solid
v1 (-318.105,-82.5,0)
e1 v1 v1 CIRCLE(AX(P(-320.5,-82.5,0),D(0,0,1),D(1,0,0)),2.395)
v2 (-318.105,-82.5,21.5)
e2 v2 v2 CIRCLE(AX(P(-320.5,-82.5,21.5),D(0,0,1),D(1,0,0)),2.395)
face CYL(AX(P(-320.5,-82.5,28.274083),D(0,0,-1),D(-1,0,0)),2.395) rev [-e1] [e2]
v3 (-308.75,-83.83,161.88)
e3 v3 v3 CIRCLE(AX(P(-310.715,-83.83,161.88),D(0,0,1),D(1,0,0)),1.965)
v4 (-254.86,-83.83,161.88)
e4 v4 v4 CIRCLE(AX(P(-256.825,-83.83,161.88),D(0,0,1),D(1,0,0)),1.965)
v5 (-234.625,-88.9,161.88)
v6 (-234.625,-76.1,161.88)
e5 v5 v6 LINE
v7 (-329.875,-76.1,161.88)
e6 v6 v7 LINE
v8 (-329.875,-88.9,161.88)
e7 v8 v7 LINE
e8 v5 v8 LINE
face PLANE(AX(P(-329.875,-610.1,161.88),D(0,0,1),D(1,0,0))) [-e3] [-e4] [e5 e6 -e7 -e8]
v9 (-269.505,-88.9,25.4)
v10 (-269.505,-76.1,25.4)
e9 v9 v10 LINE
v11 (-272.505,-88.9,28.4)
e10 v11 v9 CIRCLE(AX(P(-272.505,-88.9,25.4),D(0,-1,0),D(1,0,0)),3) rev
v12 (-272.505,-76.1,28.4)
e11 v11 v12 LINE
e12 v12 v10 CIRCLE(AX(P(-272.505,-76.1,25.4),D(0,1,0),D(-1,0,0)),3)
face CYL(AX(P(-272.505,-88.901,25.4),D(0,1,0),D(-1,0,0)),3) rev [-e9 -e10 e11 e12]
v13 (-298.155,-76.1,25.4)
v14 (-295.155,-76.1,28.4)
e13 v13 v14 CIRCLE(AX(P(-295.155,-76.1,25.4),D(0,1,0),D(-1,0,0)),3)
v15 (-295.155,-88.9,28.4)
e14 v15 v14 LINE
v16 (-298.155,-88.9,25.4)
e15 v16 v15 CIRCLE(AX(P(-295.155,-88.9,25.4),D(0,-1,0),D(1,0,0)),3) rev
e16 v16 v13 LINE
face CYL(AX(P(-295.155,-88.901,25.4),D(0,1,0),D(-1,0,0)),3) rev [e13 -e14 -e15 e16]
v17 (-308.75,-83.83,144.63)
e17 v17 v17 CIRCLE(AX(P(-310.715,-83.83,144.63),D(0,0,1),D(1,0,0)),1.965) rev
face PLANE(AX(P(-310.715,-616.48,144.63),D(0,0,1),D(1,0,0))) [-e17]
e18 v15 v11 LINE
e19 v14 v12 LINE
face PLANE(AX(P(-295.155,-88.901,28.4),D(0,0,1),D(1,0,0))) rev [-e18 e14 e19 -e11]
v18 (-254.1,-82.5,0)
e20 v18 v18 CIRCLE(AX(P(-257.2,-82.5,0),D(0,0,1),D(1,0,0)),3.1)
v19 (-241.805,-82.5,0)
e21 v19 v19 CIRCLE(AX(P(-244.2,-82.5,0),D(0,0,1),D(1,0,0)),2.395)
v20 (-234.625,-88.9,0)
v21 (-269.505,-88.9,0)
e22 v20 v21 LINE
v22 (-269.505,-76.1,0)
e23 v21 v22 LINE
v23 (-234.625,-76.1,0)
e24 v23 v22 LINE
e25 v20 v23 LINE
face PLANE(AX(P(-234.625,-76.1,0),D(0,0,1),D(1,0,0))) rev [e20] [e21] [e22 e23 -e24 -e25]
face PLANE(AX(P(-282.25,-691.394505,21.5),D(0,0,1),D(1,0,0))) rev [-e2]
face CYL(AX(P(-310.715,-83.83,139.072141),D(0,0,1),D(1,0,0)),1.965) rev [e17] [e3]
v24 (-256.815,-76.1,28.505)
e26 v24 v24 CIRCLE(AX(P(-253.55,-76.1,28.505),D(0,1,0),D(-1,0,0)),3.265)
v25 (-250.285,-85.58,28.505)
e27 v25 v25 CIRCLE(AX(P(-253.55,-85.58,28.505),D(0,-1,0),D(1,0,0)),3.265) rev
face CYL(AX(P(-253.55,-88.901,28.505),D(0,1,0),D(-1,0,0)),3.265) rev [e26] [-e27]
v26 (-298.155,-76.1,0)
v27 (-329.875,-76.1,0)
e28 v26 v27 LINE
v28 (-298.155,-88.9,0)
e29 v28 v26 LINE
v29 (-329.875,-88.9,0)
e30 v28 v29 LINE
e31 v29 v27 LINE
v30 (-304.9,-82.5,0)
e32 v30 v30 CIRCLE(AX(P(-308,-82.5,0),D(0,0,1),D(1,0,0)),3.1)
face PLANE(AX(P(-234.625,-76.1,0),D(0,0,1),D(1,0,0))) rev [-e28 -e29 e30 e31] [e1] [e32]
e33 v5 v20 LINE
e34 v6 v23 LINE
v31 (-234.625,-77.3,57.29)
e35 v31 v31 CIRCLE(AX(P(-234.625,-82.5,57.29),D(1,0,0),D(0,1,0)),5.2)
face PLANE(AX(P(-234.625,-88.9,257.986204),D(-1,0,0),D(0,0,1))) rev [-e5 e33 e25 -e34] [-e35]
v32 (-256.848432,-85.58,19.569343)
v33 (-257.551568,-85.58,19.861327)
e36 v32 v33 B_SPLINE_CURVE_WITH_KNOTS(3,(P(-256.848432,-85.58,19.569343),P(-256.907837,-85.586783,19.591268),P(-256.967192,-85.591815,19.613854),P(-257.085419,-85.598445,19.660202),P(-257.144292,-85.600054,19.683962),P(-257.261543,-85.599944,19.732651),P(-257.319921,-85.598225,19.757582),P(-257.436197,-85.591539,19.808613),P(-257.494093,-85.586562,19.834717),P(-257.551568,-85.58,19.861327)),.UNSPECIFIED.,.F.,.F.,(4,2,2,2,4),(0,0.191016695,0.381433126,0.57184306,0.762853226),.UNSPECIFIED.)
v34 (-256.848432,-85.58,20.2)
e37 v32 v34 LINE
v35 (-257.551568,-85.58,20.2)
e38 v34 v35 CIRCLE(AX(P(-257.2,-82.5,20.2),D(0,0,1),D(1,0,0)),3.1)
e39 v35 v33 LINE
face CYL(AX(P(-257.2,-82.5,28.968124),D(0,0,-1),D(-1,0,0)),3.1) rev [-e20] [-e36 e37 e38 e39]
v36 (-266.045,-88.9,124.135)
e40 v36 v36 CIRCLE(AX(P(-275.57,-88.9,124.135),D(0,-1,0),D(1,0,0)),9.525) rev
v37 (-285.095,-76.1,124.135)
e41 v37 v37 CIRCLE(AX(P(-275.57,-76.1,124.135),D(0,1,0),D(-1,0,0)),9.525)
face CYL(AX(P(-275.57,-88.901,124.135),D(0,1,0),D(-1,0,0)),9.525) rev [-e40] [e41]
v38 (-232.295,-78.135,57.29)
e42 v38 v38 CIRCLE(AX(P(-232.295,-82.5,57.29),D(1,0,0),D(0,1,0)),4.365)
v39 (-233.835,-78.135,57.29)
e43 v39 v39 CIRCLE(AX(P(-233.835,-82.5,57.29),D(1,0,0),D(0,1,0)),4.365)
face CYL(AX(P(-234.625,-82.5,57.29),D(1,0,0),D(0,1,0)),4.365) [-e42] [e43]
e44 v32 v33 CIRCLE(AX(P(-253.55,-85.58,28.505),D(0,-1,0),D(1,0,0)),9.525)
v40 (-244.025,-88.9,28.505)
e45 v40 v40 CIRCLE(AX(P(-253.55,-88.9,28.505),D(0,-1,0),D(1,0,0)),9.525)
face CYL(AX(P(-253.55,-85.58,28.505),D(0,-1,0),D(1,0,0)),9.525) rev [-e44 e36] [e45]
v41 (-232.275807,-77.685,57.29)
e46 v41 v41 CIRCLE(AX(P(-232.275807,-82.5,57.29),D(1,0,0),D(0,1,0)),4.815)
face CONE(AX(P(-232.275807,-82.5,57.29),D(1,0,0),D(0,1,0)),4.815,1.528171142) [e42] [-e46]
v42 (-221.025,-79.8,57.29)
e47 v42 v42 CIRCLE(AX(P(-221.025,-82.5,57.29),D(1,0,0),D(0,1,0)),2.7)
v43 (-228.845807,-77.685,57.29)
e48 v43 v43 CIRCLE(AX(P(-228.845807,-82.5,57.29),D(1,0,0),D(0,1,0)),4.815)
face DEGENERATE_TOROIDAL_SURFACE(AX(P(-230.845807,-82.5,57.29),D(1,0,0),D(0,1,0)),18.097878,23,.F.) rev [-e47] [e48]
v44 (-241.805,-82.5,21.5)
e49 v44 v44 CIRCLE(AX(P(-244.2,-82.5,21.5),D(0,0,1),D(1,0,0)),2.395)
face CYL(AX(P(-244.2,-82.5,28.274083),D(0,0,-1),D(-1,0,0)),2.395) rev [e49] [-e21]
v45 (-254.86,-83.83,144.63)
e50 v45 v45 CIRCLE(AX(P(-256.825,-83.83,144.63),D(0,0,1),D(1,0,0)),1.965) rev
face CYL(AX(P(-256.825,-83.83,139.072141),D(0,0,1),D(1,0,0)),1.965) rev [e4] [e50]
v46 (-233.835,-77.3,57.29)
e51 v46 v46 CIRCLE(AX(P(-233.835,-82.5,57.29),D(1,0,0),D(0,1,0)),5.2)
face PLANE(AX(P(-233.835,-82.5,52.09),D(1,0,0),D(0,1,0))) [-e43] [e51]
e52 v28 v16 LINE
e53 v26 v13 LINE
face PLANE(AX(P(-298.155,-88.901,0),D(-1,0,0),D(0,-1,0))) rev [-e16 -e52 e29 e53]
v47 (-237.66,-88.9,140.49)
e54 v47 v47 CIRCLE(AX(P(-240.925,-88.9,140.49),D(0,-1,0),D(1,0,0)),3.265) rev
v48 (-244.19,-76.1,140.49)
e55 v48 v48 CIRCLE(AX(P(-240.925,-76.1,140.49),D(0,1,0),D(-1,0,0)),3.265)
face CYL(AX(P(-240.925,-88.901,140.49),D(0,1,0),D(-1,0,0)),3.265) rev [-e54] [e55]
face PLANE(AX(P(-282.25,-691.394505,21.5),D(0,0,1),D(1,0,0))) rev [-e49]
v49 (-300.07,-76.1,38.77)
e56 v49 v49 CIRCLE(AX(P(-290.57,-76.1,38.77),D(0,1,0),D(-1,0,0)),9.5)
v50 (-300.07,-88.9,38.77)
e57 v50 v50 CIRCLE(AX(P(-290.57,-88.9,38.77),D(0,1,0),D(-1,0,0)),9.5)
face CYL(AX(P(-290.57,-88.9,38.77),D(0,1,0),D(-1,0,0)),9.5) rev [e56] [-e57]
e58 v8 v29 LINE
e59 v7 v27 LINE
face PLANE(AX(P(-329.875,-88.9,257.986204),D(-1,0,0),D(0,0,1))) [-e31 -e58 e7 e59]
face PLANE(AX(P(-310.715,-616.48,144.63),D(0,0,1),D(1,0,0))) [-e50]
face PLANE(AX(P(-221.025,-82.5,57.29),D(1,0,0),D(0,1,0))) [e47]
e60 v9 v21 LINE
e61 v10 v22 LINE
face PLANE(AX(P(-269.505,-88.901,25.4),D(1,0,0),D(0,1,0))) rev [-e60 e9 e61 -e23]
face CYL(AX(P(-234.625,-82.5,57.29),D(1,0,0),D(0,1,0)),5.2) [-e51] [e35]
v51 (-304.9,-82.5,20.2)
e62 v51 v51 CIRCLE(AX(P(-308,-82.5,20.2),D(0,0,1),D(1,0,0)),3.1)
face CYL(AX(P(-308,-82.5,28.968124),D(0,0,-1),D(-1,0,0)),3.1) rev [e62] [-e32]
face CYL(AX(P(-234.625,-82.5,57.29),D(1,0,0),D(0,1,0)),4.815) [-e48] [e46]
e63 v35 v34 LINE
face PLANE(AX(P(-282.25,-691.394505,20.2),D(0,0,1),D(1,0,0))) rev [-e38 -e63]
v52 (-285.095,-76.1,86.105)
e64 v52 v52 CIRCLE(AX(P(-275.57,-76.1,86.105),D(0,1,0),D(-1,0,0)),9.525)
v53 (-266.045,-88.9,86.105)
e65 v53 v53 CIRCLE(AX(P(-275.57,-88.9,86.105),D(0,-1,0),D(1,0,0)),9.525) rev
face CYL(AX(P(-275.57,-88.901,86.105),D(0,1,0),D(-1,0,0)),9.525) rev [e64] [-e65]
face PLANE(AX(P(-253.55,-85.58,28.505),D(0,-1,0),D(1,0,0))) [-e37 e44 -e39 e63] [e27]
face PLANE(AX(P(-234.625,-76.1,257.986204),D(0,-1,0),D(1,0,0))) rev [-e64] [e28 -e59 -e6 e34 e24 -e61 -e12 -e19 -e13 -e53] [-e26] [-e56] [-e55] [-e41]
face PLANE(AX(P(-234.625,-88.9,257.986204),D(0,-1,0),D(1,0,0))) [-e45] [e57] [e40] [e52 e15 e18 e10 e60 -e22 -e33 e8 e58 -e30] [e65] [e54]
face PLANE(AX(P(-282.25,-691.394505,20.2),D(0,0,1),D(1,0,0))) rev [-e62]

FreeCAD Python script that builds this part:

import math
import FreeCAD as App
import Part
import Sketcher
from FreeCAD import Vector

doc = App.newDocument("Part")
body = doc.addObject("PartDesign::Body", "Body")

sketch1 = body.newObject("Sketcher::SketchObject", "Sketch")
sketch1.AttachmentSupport = (doc.getObject("XY_Plane"), [""])
sketch1.MapMode = "FlatFace"
sketch1.addGeometry(Part.LineSegment(Vector(-330, -76, 0), Vector(-330, -89, 0)), False)
sketch1.addGeometry(Part.LineSegment(Vector(-330, -89, 0), Vector(-235, -89, 0)), False)
sketch1.addGeometry(Part.LineSegment(Vector(-235, -89, 0), Vector(-235, -76, 0)), False)
sketch1.addGeometry(Part.LineSegment(Vector(-235, -76, 0), Vector(-330, -76, 0)), False)
sketch1.addConstraint(Sketcher.Constraint("Coincident", 0, 2, 1, 1))
sketch1.addConstraint(Sketcher.Constraint("Coincident", 1, 2, 2, 1))
sketch1.addConstraint(Sketcher.Constraint("Coincident", 2, 2, 3, 1))
sketch1.addConstraint(Sketcher.Constraint("Coincident", 3, 2, 0, 1))
sketch1.addConstraint(Sketcher.Constraint("Vertical", 0))
sketch1.addConstraint(Sketcher.Constraint("Horizontal", 1))
sketch1.addConstraint(Sketcher.Constraint("Vertical", 2))
sketch1.addConstraint(Sketcher.Constraint("Horizontal", 3))
sketch1.addConstraint(Sketcher.Constraint("DistanceY", 0, 2, 0, 1, 12.8))
sketch1.addConstraint(Sketcher.Constraint("DistanceX", 1, 1, 1, 2, 95.25))
sketch1.addConstraint(Sketcher.Constraint("DistanceY", 0, 2, -1, 1, 88.9))
sketch1.addConstraint(Sketcher.Constraint("DistanceX", 0, 2, -1, 1, 329.875))
pad1 = body.newObject("PartDesign::Pad", "Pad")
pad1.Profile = sketch1
pad1.Length = 161.88

sketch2 = body.newObject("Sketcher::SketchObject", "Sketch001")
sketch2.AttachmentSupport = (doc.getObject("XY_Plane"), [""])
sketch2.MapMode = "FlatFace"
sketch2.addGeometry(Part.Circle(Vector(-308, -82.5, 0), Vector(0, 0, 1), 3.1), False)
sketch2.addGeometry(Part.Circle(Vector(-257.2, -82.5, 0), Vector(0, 0, 1), 3.1), False)
sketch2.addConstraint(Sketcher.Constraint("Equal", 0, 1))
sketch2.addConstraint(Sketcher.Constraint("Horizontal", 0, 3, 1, 3))
sketch2.addConstraint(Sketcher.Constraint("Diameter", 0, 6.2))
sketch2.addConstraint(Sketcher.Constraint("DistanceX", 0, 3, -1, 1, 308.0))
sketch2.addConstraint(Sketcher.Constraint("DistanceY", 0, 3, -1, 1, 82.5))
sketch2.addConstraint(Sketcher.Constraint("DistanceX", 1, 3, -1, 1, 257.2))
pocket1 = body.newObject("PartDesign::Pocket", "Pocket")
pocket1.Profile = sketch2
pocket1.Length = 20.2
pocket1.Reversed = True

sketch3 = body.newObject("Sketcher::SketchObject", "Sketch002")
sketch3.AttachmentSupport = (doc.getObject("XY_Plane"), [""])
sketch3.MapMode = "FlatFace"
sketch3.addGeometry(Part.Circle(Vector(-320.5, -82.5, 0), Vector(0, 0, 1), 2.4), False)
sketch3.addGeometry(Part.Circle(Vector(-244.2, -82.5, 0), Vector(0, 0, 1), 2.4), False)
sketch3.addConstraint(Sketcher.Constraint("Equal", 0, 1))
sketch3.addConstraint(Sketcher.Constraint("Horizontal", 0, 3, 1, 3))
sketch3.addConstraint(Sketcher.Constraint("Diameter", 0, 4.79))
sketch3.addConstraint(Sketcher.Constraint("DistanceX", 0, 3, -1, 1, 320.5))
sketch3.addConstraint(Sketcher.Constraint("DistanceY", 0, 3, -1, 1, 82.5))
sketch3.addConstraint(Sketcher.Constraint("DistanceX", 1, 3, -1, 1, 244.2))
pocket2 = body.newObject("PartDesign::Pocket", "Pocket001")
pocket2.Profile = sketch3
pocket2.Length = 21.5
pocket2.Reversed = True

sketch4 = body.newObject("Sketcher::SketchObject", "Sketch003")
sketch4.AttachmentSupport = (doc.getObject("XZ_Plane"), [""])
sketch4.MapMode = "FlatFace"
sketch4.AttachmentOffset = App.Placement(Vector(0, 0, 76.1), App.Rotation())
sketch4.addGeometry(Part.Circle(Vector(-276, 86, 0), Vector(0, 0, 1), 10), False)
sketch4.addConstraint(Sketcher.Constraint("Diameter", 0, 19.05))
sketch4.addConstraint(Sketcher.Constraint("DistanceX", 0, 3, -1, 1, 275.57))
sketch4.addConstraint(Sketcher.Constraint("DistanceY", -1, 1, 0, 3, 86.105))
pocket3 = body.newObject("PartDesign::Pocket", "Pocket002")
pocket3.Profile = sketch4
pocket3.Type = "UpToFirst"
pocket3.Reversed = True

sketch5 = body.newObject("Sketcher::SketchObject", "Sketch004")
sketch5.AttachmentSupport = (doc.getObject("XZ_Plane"), [""])
sketch5.MapMode = "FlatFace"
sketch5.AttachmentOffset = App.Placement(Vector(0, 0, 76.1), App.Rotation())
sketch5.addGeometry(Part.Circle(Vector(-276, 124, 0), Vector(0, 0, 1), 10), False)
sketch5.addConstraint(Sketcher.Constraint("Diameter", 0, 19.05))
sketch5.addConstraint(Sketcher.Constraint("DistanceX", 0, 3, -1, 1, 275.57))
sketch5.addConstraint(Sketcher.Constraint("DistanceY", -1, 1, 0, 3, 124.135))
pocket4 = body.newObject("PartDesign::Pocket", "Pocket003")
pocket4.Profile = sketch5
pocket4.Type = "UpToFirst"
pocket4.Reversed = True

sketch6 = body.newObject("Sketcher::SketchObject", "Sketch005")
sketch6.AttachmentSupport = (doc.getObject("XZ_Plane"), [""])
sketch6.MapMode = "FlatFace"
sketch6.AttachmentOffset = App.Placement(Vector(0, 0, 76.1), App.Rotation())
sketch6.addGeometry(Part.Circle(Vector(-253.6, 28.5, 0), Vector(0, 0, 1), 3.3), False)
sketch6.addConstraint(Sketcher.Constraint("Diameter", 0, 6.53))
sketch6.addConstraint(Sketcher.Constraint("DistanceX", 0, 3, -1, 1, 253.55))
sketch6.addConstraint(Sketcher.Constraint("DistanceY", -1, 1, 0, 3, 28.505))
pocket5 = body.newObject("PartDesign::Pocket", "Pocket004")
pocket5.Profile = sketch6
pocket5.Type = "UpToFirst"
pocket5.Reversed = True

sketch7 = body.newObject("Sketcher::SketchObject", "Sketch006")
sketch7.AttachmentSupport = (doc.getObject("XZ_Plane"), [""])
sketch7.MapMode = "FlatFace"
sketch7.AttachmentOffset = App.Placement(Vector(0, 0, 76.1), App.Rotation())
sketch7.addGeometry(Part.Circle(Vector(-240.9, 140.5, 0), Vector(0, 0, 1), 3.3), False)
sketch7.addConstraint(Sketcher.Constraint("Diameter", 0, 6.53))
sketch7.addConstraint(Sketcher.Constraint("DistanceY", -1, 1, 0, 3, 140.49))
sketch7.addConstraint(Sketcher.Constraint("DistanceX", 0, 3, -1, 1, 240.925))
pocket6 = body.newObject("PartDesign::Pocket", "Pocket005")
pocket6.Profile = sketch7
pocket6.Type = "UpToFirst"
pocket6.Reversed = True

sketch8 = body.newObject("Sketcher::SketchObject", "Sketch007")
sketch8.AttachmentSupport = (doc.getObject("XZ_Plane"), [""])
sketch8.MapMode = "FlatFace"
sketch8.AttachmentOffset = App.Placement(Vector(0, 0, 76.1), App.Rotation())
sketch8.addGeometry(Part.LineSegment(Vector(-269.5, 25.4, 0), Vector(-269.5, 0, 0)), False)
sketch8.addGeometry(Part.LineSegment(Vector(-269.5, 0, 0), Vector(-298.2, 0, 0)), False)
sketch8.addGeometry(Part.LineSegment(Vector(-298.2, 0, 0), Vector(-298.2, 25.4, 0)), False)
sketch8.addGeometry(Part.ArcOfCircle(Part.Circle(Vector(-295.2, 25.4, 0), Vector(0, 0, 1), 3), math.radians(90), math.radians(180)), False)
sketch8.addGeometry(Part.LineSegment(Vector(-295.2, 28.4, 0), Vector(-272.5, 28.4, 0)), False)
sketch8.addGeometry(Part.ArcOfCircle(Part.Circle(Vector(-272.5, 25.4, 0), Vector(0, 0, 1), 3), math.radians(0), math.radians(90)), False)
sketch8.addConstraint(Sketcher.Constraint("Coincident", 0, 2, 1, 1))
sketch8.addConstraint(Sketcher.Constraint("Coincident", 1, 2, 2, 1))
sketch8.addConstraint(Sketcher.Constraint("Tangent", 2, 2, 3, 2))
sketch8.addConstraint(Sketcher.Constraint("Tangent", 3, 1, 4, 1))
sketch8.addConstraint(Sketcher.Constraint("Tangent", 4, 2, 5, 2))
sketch8.addConstraint(Sketcher.Constraint("Tangent", 5, 1, 0, 1))
sketch8.addConstraint(Sketcher.Constraint("Vertical", 0))
sketch8.addConstraint(Sketcher.Constraint("Horizontal", 1))
sketch8.addConstraint(Sketcher.Constraint("Vertical", 2))
sketch8.addConstraint(Sketcher.Constraint("Horizontal", 4))
sketch8.addConstraint(Sketcher.Constraint("Equal", 3, 5))
sketch8.addConstraint(Sketcher.Constraint("PointOnObject", 0, 2, -1))
sketch8.addConstraint(Sketcher.Constraint("Radius", 3, 3.0))
sketch8.addConstraint(Sketcher.Constraint("DistanceY", 0, 2, 0, 1, 25.4))
sketch8.addConstraint(Sketcher.Constraint("DistanceX", 1, 2, 1, 1, 28.65))
sketch8.addConstraint(Sketcher.Constraint("DistanceX", 3, 3, -1, 1, 295.155))
pocket7 = body.newObject("PartDesign::Pocket", "Pocket006")
pocket7.Profile = sketch8
pocket7.Type = "UpToFirst"
pocket7.Reversed = True

sketch9 = body.newObject("Sketcher::SketchObject", "Sketch008")
sketch9.AttachmentSupport = (doc.getObject("XZ_Plane"), [""])
sketch9.MapMode = "FlatFace"
sketch9.AttachmentOffset = App.Placement(Vector(0, 0, 88.9), App.Rotation())
sketch9.addGeometry(Part.Circle(Vector(-240.9, 140.5, 0), Vector(0, 0, 1), 3.3), False)
sketch9.addGeometry(Part.Circle(Vector(-253.6, 28.5, 0), Vector(0, 0, 1), 9.5), False)
sketch9.addConstraint(Sketcher.Constraint("Diameter", 0, 6.53))
sketch9.addConstraint(Sketcher.Constraint("Diameter", 1, 19.05))
sketch9.addConstraint(Sketcher.Constraint("DistanceY", -1, 1, 0, 3, 140.49))
sketch9.addConstraint(Sketcher.Constraint("DistanceX", 1, 3, -1, 1, 253.55))
sketch9.addConstraint(Sketcher.Constraint("DistanceX", 0, 3, -1, 1, 240.925))
sketch9.addConstraint(Sketcher.Constraint("DistanceY", -1, 1, 1, 3, 28.505))
pocket8 = body.newObject("PartDesign::Pocket", "Pocket007")
pocket8.Profile = sketch9
pocket8.Length = 3.32

sketch10 = body.newObject("Sketcher::SketchObject", "Sketch009")
sketch10.AttachmentSupport = (doc.getObject("XY_Plane"), [""])
sketch10.MapMode = "FlatFace"
sketch10.AttachmentOffset = App.Placement(Vector(0, 0, 144.63), App.Rotation())
sketch10.addGeometry(Part.Circle(Vector(-256.8, -83.8, 0), Vector(0, 0, 1), 2), False)
sketch10.addGeometry(Part.Circle(Vector(-310.7, -83.8, 0), Vector(0, 0, 1), 2), False)
sketch10.addConstraint(Sketcher.Constraint("Equal", 0, 1))
sketch10.addConstraint(Sketcher.Constraint("Horizontal", 0, 3, 1, 3))
sketch10.addConstraint(Sketcher.Constraint("Diameter", 0, 3.93))
sketch10.addConstraint(Sketcher.Constraint("DistanceY", 0, 3, -1, 1, 83.83))
sketch10.addConstraint(Sketcher.Constraint("DistanceX", 1, 3, 0, 3, 53.89))
sketch10.addConstraint(Sketcher.Constraint("DistanceX", 0, 3, -1, 1, 256.825))
pocket9 = body.newObject("PartDesign::Pocket", "Pocket008")
pocket9.Profile = sketch10
pocket9.Length = 17.25
pocket9.Reversed = True

sketch11 = body.newObject("Sketcher::SketchObject", "Sketch010")
sketch11.AttachmentSupport = (doc.getObject("XZ_Plane"), [""])
sketch11.MapMode = "FlatFace"
sketch11.AttachmentOffset = App.Placement(Vector(0, 0, 82.5), App.Rotation())
sketch11.addGeometry(Part.LineSegment(Vector(-234.62, 57.29, 0), Vector(-221.03, 57.29, 0)), False)
sketch11.addGeometry(Part.LineSegment(Vector(-221.03, 57.29, 0), Vector(-221.03, 54.59, 0)), False)
sketch11.addGeometry(Part.ArcOfCircle(Part.Circle(Vector(-230.85, 75.39, 0), Vector(0, 0, 1), 23), math.radians(-85), math.radians(-65)), False)
sketch11.addGeometry(Part.LineSegment(Vector(-228.85, 52.48, 0), Vector(-232.28, 52.48, 0)), False)
sketch11.addGeometry(Part.LineSegment(Vector(-232.28, 52.48, 0), Vector(-232.29, 52.92, 0)), False)
sketch11.addGeometry(Part.LineSegment(Vector(-232.29, 52.92, 0), Vector(-233.84, 52.92, 0)), False)
sketch11.addGeometry(Part.LineSegment(Vector(-233.84, 52.92, 0), Vector(-233.84, 52.09, 0)), False)
sketch11.addGeometry(Part.LineSegment(Vector(-233.84, 52.09, 0), Vector(-234.62, 52.09, 0)), False)
sketch11.addGeometry(Part.LineSegment(Vector(-234.62, 52.09, 0), Vector(-234.62, 57.29, 0)), False)
sketch11.addGeometry(Part.LineSegment(Vector(-221.03, 57.29, 0), Vector(-234.62, 57.29, 0)), True)
sketch11.addConstraint(Sketcher.Constraint("Coincident", 0, 2, 1, 1))
sketch11.addConstraint(Sketcher.Constraint("Coincident", 1, 2, 2, 2))
sketch11.addConstraint(Sketcher.Constraint("Coincident", 2, 1, 3, 1))
sketch11.addConstraint(Sketcher.Constraint("Coincident", 3, 2, 4, 1))
sketch11.addConstraint(Sketcher.Constraint("Coincident", 4, 2, 5, 1))
sketch11.addConstraint(Sketcher.Constraint("Coincident", 5, 2, 6, 1))
sketch11.addConstraint(Sketcher.Constraint("Coincident", 6, 2, 7, 1))
sketch11.addConstraint(Sketcher.Constraint("Coincident", 7, 2, 8, 1))
sketch11.addConstraint(Sketcher.Constraint("Coincident", 8, 2, 0, 1))
sketch11.addConstraint(Sketcher.Constraint("Horizontal", 0))
sketch11.addConstraint(Sketcher.Constraint("Vertical", 1))
sketch11.addConstraint(Sketcher.Constraint("Horizontal", 3))
sketch11.addConstraint(Sketcher.Constraint("Horizontal", 5))
sketch11.addConstraint(Sketcher.Constraint("Vertical", 6))
sketch11.addConstraint(Sketcher.Constraint("Horizontal", 7))
sketch11.addConstraint(Sketcher.Constraint("Vertical", 8))
sketch11.addConstraint(Sketcher.Constraint("Horizontal", 9))
sketch11.addConstraint(Sketcher.Constraint("Coincident", 9, 1, 0, 2))
sketch11.addConstraint(Sketcher.Constraint("Vertical", 7, 2, 9, 2))
sketch11.addConstraint(Sketcher.Constraint("Radius", 2, 23.0))
sketch11.addConstraint(Sketcher.Constraint("DistanceX", 0, 1, 0, 2, 13.6))
sketch11.addConstraint(Sketcher.Constraint("DistanceY", 1, 2, 1, 1, 2.7))
sketch11.addConstraint(Sketcher.Constraint("DistanceY", 8, 1, 8, 2, 5.2))
sketch11.addConstraint(Sketcher.Constraint("DistanceX", 2, 3, 2, 1, 2.0))
sketch11.addConstraint(Sketcher.Constraint("DistanceX", 3, 2, 3, 1, 3.43))
sketch11.addConstraint(Sketcher.Constraint("DistanceX", 5, 2, 5, 1, 1.54))
sketch11.addConstraint(Sketcher.Constraint("DistanceX", 7, 2, 7, 1, 0.79))
sketch11.addConstraint(Sketcher.Constraint("DistanceY", 6, 2, 6, 1, 0.835))
sketch11.addConstraint(Sketcher.Constraint("DistanceY", -1, 1, 0, 2, 57.29))
sketch11.addConstraint(Sketcher.Constraint("DistanceY", 3, 2, 4, 2, 0.45))
sketch11.addConstraint(Sketcher.Constraint("DistanceX", 0, 2, -1, 1, 221.025))
revolution = body.newObject("PartDesign::Revolution", "Revolution")
revolution.Profile = sketch11
revolution.ReferenceAxis = (sketch11, ["Axis0"])
revolution.Angle = 360

sketch12 = body.newObject("Sketcher::SketchObject", "Sketch011")
sketch12.AttachmentSupport = (doc.getObject("XZ_Plane"), [""])
sketch12.MapMode = "FlatFace"
sketch12.AttachmentOffset = App.Placement(Vector(0, 0, 76.1), App.Rotation())
sketch12.addGeometry(Part.Circle(Vector(-291, 39, 0), Vector(0, 0, 1), 10), False)
sketch12.addConstraint(Sketcher.Constraint("Diameter", 0, 19.0))
sketch12.addConstraint(Sketcher.Constraint("DistanceX", 0, 3, -1, 1, 290.57))
sketch12.addConstraint(Sketcher.Constraint("DistanceY", -1, 1, 0, 3, 38.77))
pocket10 = body.newObject("PartDesign::Pocket", "Pocket009")
pocket10.Profile = sketch12
pocket10.Type = "ThroughAll"
pocket10.Reversed = True

doc.recompute()
